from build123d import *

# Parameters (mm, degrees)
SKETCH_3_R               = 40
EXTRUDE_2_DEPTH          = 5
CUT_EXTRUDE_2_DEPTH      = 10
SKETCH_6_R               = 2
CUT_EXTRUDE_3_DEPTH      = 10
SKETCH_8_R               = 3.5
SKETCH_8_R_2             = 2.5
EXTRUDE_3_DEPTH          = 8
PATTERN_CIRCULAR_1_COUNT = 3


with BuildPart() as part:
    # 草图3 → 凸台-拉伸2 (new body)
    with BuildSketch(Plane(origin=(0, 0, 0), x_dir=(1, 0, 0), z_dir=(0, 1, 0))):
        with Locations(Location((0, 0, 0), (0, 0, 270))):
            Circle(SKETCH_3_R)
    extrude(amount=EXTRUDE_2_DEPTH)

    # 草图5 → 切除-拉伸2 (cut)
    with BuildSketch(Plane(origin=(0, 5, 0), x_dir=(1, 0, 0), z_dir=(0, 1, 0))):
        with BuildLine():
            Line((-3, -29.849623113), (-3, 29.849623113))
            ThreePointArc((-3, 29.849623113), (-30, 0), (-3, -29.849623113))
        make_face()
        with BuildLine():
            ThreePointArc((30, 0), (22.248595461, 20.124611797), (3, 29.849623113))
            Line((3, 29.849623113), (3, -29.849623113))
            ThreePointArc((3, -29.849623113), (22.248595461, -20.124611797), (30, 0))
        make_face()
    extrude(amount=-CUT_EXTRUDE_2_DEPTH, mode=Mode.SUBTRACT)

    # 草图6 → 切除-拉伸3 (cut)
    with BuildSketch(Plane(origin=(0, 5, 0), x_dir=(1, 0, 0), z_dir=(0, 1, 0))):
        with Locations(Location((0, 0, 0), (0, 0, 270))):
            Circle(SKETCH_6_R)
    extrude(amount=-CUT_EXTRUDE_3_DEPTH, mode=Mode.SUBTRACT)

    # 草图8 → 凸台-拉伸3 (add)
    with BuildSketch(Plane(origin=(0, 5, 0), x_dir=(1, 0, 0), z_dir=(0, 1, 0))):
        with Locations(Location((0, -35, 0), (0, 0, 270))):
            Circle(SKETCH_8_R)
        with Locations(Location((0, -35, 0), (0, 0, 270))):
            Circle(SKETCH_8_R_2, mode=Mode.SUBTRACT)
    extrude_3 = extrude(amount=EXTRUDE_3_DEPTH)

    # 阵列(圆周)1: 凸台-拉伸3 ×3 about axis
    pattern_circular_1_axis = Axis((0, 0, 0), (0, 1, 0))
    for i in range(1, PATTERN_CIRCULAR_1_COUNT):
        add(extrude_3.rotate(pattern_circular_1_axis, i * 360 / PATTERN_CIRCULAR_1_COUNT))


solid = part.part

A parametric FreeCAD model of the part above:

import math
import FreeCAD as App
import Part
import Sketcher

V = App.Vector
Q = App.Units.Quantity

doc = App.newDocument("Part")
body = doc.addObject("PartDesign::Body", "Body")

# Sketch on XZ plane
sketch1 = body.newObject("Sketcher::SketchObject", "Sketch")
sketch1.AttachmentSupport = (doc.getObject("XZ_Plane"), [""])
sketch1.MapMode = "FlatFace"
sketch1.addGeometry(Part.Circle(V(0, 0, 0), V(0, 0, 1), 40), False)
sketch1.addConstraint([
    Sketcher.Constraint("Coincident", 0, 3, -1, 1),
    Sketcher.Constraint("Diameter", 0, Q("80 mm")),
])
pad1 = body.newObject("PartDesign::Pad", "Pad")
pad1.Profile = sketch1
pad1.Length = 5
pad1.Reversed = True

# Sketch on XZ plane
sketch2 = body.newObject("Sketcher::SketchObject", "Sketch001")
sketch2.AttachmentSupport = (doc.getObject("XZ_Plane"), [""])
sketch2.MapMode = "FlatFace"
sketch2.AttachmentOffset = App.Placement(V(0, 0, -5), App.Rotation())
sketch2.addGeometry([
    Part.LineSegment(V(-3, 30, 0), V(-3, -30, 0)),  # 0
    Part.ArcOfCircle(Part.Circle(V(0, 0, 0), V(0, 0, 1), 30), math.radians(96), math.radians(264)),  # 1
    Part.ArcOfCircle(Part.Circle(V(0, 0, 0), V(0, 0, 1), 30), math.radians(-84), math.radians(0)),  # 2
    Part.LineSegment(V(3, -30, 0), V(3, 30, 0)),  # 3
    Part.ArcOfCircle(Part.Circle(V(0, 0, 0), V(0, 0, 1), 30), math.radians(0), math.radians(84)),  # 4
], False)
sketch2.addConstraint([
    Sketcher.Constraint("Coincident", 0, 1, 1, 1),
    Sketcher.Constraint("Coincident", 1, 2, 0, 2),
    Sketcher.Constraint("Coincident", 2, 1, 3, 1),
    Sketcher.Constraint("Coincident", 3, 2, 4, 2),
    Sketcher.Constraint("Tangent", 4, 1, 2, 2),
    Sketcher.Constraint("Vertical", 0),
    Sketcher.Constraint("Vertical", 3),
    Sketcher.Constraint("Coincident", 1, 3, -1, 1),
    Sketcher.Constraint("Coincident", 2, 3, -1, 1),
    Sketcher.Constraint("Equal", 1, 2),
    Sketcher.Constraint("Equal", 2, 4),
    Sketcher.Constraint("PointOnObject", 4, 1, -1),
    Sketcher.Constraint("Horizontal", 1, 2, 2, 1),
    Sketcher.Constraint("Radius", 1, Q("30 mm")),
    Sketcher.Constraint("DistanceX", 0, 1, -1, 1, Q("3 mm")),
])
pocket1 = body.newObject("PartDesign::Pocket", "Pocket")
pocket1.Profile = sketch2
pocket1.Length = 10
pocket1.Reversed = True

# Sketch on XZ plane
sketch3 = body.newObject("Sketcher::SketchObject", "Sketch002")
sketch3.AttachmentSupport = (doc.getObject("XZ_Plane"), [""])
sketch3.MapMode = "FlatFace"
sketch3.AttachmentOffset = App.Placement(V(0, 0, -5), App.Rotation())
sketch3.addGeometry(Part.Circle(V(0, 0, 0), V(0, 0, 1), 2), False)
sketch3.addConstraint([
    Sketcher.Constraint("Coincident", 0, 3, -1, 1),
    Sketcher.Constraint("Diameter", 0, Q("4 mm")),
])
pocket2 = body.newObject("PartDesign::Pocket", "Pocket001")
pocket2.Profile = sketch3
pocket2.Length = 10
pocket2.Reversed = True

# Sketch on XZ plane
sketch4 = body.newObject("Sketcher::SketchObject", "Sketch003")
sketch4.AttachmentSupport = (doc.getObject("XZ_Plane"), [""])
sketch4.MapMode = "FlatFace"
sketch4.AttachmentOffset = App.Placement(V(0, 0, -5), App.Rotation())
sketch4.addGeometry([
    Part.Circle(V(0, 35, 0), V(0, 0, 1), 3.5),
    Part.Circle(V(0, 35, 0), V(0, 0, 1), 2.5),
], False)
sketch4.addConstraint([
    Sketcher.Constraint("Coincident", 1, 3, 0, 3),
    Sketcher.Constraint("PointOnObject", 0, 3, -2),
    Sketcher.Constraint("Diameter", 0, Q("7 mm")),
    Sketcher.Constraint("Diameter", 1, Q("5 mm")),
    Sketcher.Constraint("DistanceY", -1, 1, 0, 3, Q("35 mm")),
])
pad2 = body.newObject("PartDesign::Pad", "Pad001")
pad2.Profile = sketch4
pad2.Length = 8
pad2.Reversed = True
doc.recompute()

polarpattern = body.newObject("PartDesign::PolarPattern", "PolarPattern")
polarpattern.Originals = [pad2]
polarpattern.Axis = (doc.getObject("Y_Axis"), [""])
polarpattern.Angle = 360
polarpattern.Occurrences = 3
body.Tip = polarpattern

doc.recompute()
